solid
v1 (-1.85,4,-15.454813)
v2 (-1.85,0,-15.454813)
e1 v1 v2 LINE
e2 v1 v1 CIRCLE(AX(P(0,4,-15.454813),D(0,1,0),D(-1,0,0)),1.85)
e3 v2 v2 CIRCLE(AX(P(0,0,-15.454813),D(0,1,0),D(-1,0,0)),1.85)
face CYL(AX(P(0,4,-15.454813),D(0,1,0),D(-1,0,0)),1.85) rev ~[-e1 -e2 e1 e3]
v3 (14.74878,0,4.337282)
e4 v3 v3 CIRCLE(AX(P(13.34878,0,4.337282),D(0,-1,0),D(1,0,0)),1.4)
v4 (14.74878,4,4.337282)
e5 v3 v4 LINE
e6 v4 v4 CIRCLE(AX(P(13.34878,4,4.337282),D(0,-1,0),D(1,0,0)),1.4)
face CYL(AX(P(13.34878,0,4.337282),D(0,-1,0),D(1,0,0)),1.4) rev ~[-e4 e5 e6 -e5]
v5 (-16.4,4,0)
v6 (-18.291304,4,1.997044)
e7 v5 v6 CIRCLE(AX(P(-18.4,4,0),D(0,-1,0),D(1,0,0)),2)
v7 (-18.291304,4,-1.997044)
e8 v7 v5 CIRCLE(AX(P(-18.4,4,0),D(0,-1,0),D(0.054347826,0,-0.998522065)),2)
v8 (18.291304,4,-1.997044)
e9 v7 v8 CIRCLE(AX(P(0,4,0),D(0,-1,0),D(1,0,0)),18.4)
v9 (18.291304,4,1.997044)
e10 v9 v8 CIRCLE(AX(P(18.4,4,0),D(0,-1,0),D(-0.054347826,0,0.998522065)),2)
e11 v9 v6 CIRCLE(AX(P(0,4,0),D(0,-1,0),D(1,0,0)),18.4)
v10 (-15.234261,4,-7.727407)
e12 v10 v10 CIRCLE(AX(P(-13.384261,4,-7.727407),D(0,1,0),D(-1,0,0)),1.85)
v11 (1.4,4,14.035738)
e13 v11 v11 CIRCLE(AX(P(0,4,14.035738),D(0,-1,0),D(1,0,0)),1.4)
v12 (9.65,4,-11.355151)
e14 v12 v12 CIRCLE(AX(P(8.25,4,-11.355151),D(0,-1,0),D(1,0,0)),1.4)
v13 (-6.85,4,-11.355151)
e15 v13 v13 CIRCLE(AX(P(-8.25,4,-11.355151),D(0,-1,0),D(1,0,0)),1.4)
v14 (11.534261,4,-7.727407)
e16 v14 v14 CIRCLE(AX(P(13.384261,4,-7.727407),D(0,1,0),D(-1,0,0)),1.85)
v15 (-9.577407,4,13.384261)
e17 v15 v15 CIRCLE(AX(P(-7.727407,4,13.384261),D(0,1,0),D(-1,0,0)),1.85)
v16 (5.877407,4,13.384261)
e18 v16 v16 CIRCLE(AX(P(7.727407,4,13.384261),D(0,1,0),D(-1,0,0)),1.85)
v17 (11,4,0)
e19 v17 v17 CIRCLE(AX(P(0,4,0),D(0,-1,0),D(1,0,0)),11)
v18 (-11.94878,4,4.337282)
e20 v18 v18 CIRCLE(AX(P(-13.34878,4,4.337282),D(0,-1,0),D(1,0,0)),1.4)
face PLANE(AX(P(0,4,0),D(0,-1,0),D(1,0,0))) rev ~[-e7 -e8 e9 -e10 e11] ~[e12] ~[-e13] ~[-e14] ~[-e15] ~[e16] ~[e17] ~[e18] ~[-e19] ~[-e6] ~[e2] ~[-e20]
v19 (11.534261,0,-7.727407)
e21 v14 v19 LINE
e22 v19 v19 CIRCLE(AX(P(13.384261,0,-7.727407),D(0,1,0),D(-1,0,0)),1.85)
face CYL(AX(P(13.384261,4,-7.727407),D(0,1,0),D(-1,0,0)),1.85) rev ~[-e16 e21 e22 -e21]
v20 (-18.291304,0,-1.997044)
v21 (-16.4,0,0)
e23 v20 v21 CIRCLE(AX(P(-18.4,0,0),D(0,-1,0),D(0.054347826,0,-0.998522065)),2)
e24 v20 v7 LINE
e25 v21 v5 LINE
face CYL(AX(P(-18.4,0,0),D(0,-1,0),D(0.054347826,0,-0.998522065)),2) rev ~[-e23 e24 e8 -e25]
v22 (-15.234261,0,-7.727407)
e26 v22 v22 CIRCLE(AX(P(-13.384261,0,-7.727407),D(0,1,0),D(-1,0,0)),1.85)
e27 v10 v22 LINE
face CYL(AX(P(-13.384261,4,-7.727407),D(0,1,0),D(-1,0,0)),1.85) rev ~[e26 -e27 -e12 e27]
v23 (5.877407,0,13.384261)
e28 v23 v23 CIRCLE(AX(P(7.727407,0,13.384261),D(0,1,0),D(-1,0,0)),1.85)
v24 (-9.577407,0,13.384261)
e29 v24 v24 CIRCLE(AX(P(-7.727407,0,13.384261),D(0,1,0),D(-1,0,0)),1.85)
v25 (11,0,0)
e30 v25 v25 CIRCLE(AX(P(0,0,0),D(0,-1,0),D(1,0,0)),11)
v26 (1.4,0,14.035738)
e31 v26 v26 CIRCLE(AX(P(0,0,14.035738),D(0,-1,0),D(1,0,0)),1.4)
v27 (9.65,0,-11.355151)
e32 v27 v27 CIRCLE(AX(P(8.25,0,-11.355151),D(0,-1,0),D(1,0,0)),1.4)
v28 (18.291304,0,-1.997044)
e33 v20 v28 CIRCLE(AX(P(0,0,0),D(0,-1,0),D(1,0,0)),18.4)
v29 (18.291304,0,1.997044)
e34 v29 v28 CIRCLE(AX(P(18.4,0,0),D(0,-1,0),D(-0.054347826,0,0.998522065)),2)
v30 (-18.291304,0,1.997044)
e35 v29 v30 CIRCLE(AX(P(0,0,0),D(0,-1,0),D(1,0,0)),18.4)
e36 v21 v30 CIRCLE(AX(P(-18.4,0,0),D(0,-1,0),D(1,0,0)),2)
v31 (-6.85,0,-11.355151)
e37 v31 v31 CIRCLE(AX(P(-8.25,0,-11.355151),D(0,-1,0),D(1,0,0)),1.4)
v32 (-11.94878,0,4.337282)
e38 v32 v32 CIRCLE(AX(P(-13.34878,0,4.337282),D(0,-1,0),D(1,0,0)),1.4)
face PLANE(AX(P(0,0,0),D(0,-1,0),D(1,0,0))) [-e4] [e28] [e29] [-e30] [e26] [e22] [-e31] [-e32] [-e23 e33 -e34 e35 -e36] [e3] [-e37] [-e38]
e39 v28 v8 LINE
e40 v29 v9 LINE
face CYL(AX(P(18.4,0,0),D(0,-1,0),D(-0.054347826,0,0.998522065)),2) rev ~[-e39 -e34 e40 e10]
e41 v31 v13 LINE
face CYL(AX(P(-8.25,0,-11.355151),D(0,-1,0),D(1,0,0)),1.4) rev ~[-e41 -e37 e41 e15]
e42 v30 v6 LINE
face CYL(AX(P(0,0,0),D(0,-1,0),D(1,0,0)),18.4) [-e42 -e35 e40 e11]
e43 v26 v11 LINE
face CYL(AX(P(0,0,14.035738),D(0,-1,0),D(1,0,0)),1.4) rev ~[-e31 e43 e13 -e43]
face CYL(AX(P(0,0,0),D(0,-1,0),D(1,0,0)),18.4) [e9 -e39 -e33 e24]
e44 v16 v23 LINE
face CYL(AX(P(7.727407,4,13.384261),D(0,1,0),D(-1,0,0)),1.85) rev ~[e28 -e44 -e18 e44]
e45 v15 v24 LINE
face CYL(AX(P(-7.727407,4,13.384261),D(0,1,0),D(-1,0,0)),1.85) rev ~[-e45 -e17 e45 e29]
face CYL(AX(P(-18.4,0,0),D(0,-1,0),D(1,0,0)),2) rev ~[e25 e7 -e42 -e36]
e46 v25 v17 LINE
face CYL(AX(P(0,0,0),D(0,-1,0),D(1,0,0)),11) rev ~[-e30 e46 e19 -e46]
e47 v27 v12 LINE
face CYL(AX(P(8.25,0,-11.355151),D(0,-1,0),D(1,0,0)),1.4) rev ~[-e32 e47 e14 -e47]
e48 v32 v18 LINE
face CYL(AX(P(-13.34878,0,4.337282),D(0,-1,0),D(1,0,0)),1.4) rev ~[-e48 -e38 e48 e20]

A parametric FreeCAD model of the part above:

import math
import FreeCAD as App
import Part
import Sketcher

doc = App.newDocument("Part")
body = doc.addObject("PartDesign::Body", "Body")

# Sketch on XZ plane
sketch1 = doc.addObject("Sketcher::SketchObject", "Sketch")
body.addObject(sketch1)
sketch1.AttachmentSupport = (doc.XZ_Plane, [""])
sketch1.MapMode = "FlatFace"
sketch1.addGeometry(Part.Circle(App.Vector(0, 0, 0), App.Vector(0, 0, 1), 18.4), False)
sketch1.addGeometry(Part.Circle(App.Vector(-8.2, -11.4, 0), App.Vector(0, 0, 1), 1.4), False)
sketch1.addGeometry(Part.Circle(App.Vector(0, 0, 0), App.Vector(0, 0, 1), 11), False)
sketch1.addGeometry(Part.Circle(App.Vector(8.2, -11.4, 0), App.Vector(0, 0, 1), 1.4), False)
sketch1.addGeometry(Part.Circle(App.Vector(-13.3, 4.3, 0), App.Vector(0, 0, 1), 1.4), False)
sketch1.addGeometry(Part.Circle(App.Vector(0, 14, 0), App.Vector(0, 0, 1), 1.4), False)
sketch1.addGeometry(Part.Circle(App.Vector(13.3, 4.3, 0), App.Vector(0, 0, 1), 1.4), False)
sketch1.addConstraint(Sketcher.Constraint("Coincident", 0, 3, -1, 1))
sketch1.addConstraint(Sketcher.Constraint("Coincident", 2, 3, -1, 1))
sketch1.addConstraint(Sketcher.Constraint("Equal", 1, 3))
sketch1.addConstraint(Sketcher.Constraint("Equal", 3, 4))
sketch1.addConstraint(Sketcher.Constraint("Equal", 4, 5))
sketch1.addConstraint(Sketcher.Constraint("Equal", 5, 6))
sketch1.addConstraint(Sketcher.Constraint("Symmetric", 1, 3, 3, 3, -2))
sketch1.addConstraint(Sketcher.Constraint("Symmetric", 4, 3, 6, 3, -2))
sketch1.addConstraint(Sketcher.Constraint("PointOnObject", 5, 3, -2))
sketch1.addConstraint(Sketcher.Constraint("Diameter", 2, 22.0))
sketch1.addConstraint(Sketcher.Constraint("Diameter", 0, 36.8))
sketch1.addConstraint(Sketcher.Constraint("Diameter", 1, 2.8))
sketch1.addConstraint(Sketcher.Constraint("DistanceX", 1, 3, 3, 3, 16.5))
sketch1.addConstraint(Sketcher.Constraint("DistanceY", 1, 3, -1, 1, 11.355151))
sketch1.addConstraint(Sketcher.Constraint("DistanceX", 4, 3, -1, 1, 13.34878))
sketch1.addConstraint(Sketcher.Constraint("DistanceY", -1, 1, 4, 3, 4.337282))
sketch1.addConstraint(Sketcher.Constraint("DistanceY", -1, 1, 5, 3, 14.035738))
pad1 = doc.addObject("PartDesign::Pad", "Pad")
body.addObject(pad1)
pad1.Profile = sketch1
pad1.Length = 4
pad1.Reversed = True

# Sketch on XZ plane
sketch2 = doc.addObject("Sketcher::SketchObject", "Sketch001")
body.addObject(sketch2)
sketch2.AttachmentSupport = (doc.XZ_Plane, [""])
sketch2.MapMode = "FlatFace"
sketch2.AttachmentOffset = App.Placement(App.Vector(0, 0, -4), App.Rotation())
sketch2.addGeometry(Part.Circle(App.Vector(0, -15.5, 0), App.Vector(0, 0, 1), 1.9), False)
sketch2.addGeometry(Part.Circle(App.Vector(-13.4, -7.7, 0), App.Vector(0, 0, 1), 1.9), False)
sketch2.addGeometry(Part.Circle(App.Vector(13.4, -7.7, 0), App.Vector(0, 0, 1), 1.9), False)
sketch2.addGeometry(Part.Circle(App.Vector(7.7, 13.4, 0), App.Vector(0, 0, 1), 1.9), False)
sketch2.addGeometry(Part.Circle(App.Vector(-7.7, 13.4, 0), App.Vector(0, 0, 1), 1.9), False)
sketch2.addConstraint(Sketcher.Constraint("Equal", 0, 1))
sketch2.addConstraint(Sketcher.Constraint("Equal", 1, 2))
sketch2.addConstraint(Sketcher.Constraint("Equal", 2, 3))
sketch2.addConstraint(Sketcher.Constraint("Equal", 3, 4))
sketch2.addConstraint(Sketcher.Constraint("Symmetric", 1, 3, 2, 3, -2))
sketch2.addConstraint(Sketcher.Constraint("Symmetric", 3, 3, 4, 3, -2))
sketch2.addConstraint(Sketcher.Constraint("PointOnObject", 0, 3, -2))
sketch2.addConstraint(Sketcher.Constraint("Diameter", 0, 3.7))
sketch2.addConstraint(Sketcher.Constraint("DistanceX", 1, 3, -1, 1, 13.384261))
sketch2.addConstraint(Sketcher.Constraint("DistanceY", -1, 1, 3, 3, 13.384261))
sketch2.addConstraint(Sketcher.Constraint("DistanceY", 0, 3, -1, 1, 15.454813))
sketch2.addConstraint(Sketcher.Constraint("DistanceY", 1, 3, -1, 1, 7.727407))
sketch2.addConstraint(Sketcher.Constraint("DistanceX", -1, 1, 3, 3, 7.727407))
pocket1 = doc.addObject("PartDesign::Pocket", "Pocket")
body.addObject(pocket1)
pocket1.Profile = sketch2
pocket1.Length = 25
pocket1.Reversed = True

# Sketch on XZ plane
sketch3 = doc.addObject("Sketcher::SketchObject", "Sketch002")
body.addObject(sketch3)
sketch3.AttachmentSupport = (doc.XZ_Plane, [""])
sketch3.MapMode = "FlatFace"
sketch3.addGeometry(Part.ArcOfCircle(Part.Circle(App.Vector(-18.4, 0, 0), App.Vector(0, 0, 1), 2), math.radians(-87), math.radians(0)), False)
sketch3.addGeometry(Part.ArcOfCircle(Part.Circle(App.Vector(-18.4, 0, 0), App.Vector(0, 0, 1), 2), math.radians(0), math.radians(87)), False)
sketch3.addGeometry(Part.ArcOfCircle(Part.Circle(App.Vector(0, 0, 0), App.Vector(0, 0, 1), 18.4), math.radians(173.77), math.radians(186.23)), False)
sketch3.addGeometry(Part.ArcOfCircle(Part.Circle(App.Vector(0, 0, 0), App.Vector(0, 0, 1), 18.4), math.radians(0), math.radians(6.23)), False)
sketch3.addGeometry(Part.ArcOfCircle(Part.Circle(App.Vector(18.4, 0, 0), App.Vector(0, 0, 1), 2), math.radians(93), math.radians(267)), False)
sketch3.addGeometry(Part.ArcOfCircle(Part.Circle(App.Vector(0, 0, 0), App.Vector(0, 0, 1), 18.4), math.radians(-6.23), math.radians(0)), False)
sketch3.addConstraint(Sketcher.Constraint("Tangent", 0, 2, 1, 1))
sketch3.addConstraint(Sketcher.Constraint("Coincident", 1, 2, 2, 1))
sketch3.addConstraint(Sketcher.Constraint("Coincident", 2, 2, 0, 1))
sketch3.addConstraint(Sketcher.Constraint("Coincident", 3, 2, 4, 1))
sketch3.addConstraint(Sketcher.Constraint("Coincident", 4, 2, 5, 1))
sketch3.addConstraint(Sketcher.Constraint("Tangent", 5, 2, 3, 1))
sketch3.addConstraint(Sketcher.Constraint("Coincident", 2, 3, -1, 1))
sketch3.addConstraint(Sketcher.Constraint("Coincident", 3, 3, -1, 1))
sketch3.addConstraint(Sketcher.Constraint("Coincident", 5, 2, 4, 3))
sketch3.addConstraint(Sketcher.Constraint("Equal", 0, 1))
sketch3.addConstraint(Sketcher.Constraint("Equal", 2, 3))
sketch3.addConstraint(Sketcher.Constraint("Equal", 1, 4))
sketch3.addConstraint(Sketcher.Constraint("Equal", 3, 5))
sketch3.addConstraint(Sketcher.Constraint("Symmetric", 0, 3, 4, 3, -1, 1))
sketch3.addConstraint(Sketcher.Constraint("PointOnObject", 0, 3, -1))
sketch3.addConstraint(Sketcher.Constraint("PointOnObject", 0, 2, -1))
sketch3.addConstraint(Sketcher.Constraint("Radius", 0, 2.0))
sketch3.addConstraint(Sketcher.Constraint("Radius", 2, 18.4))
pocket2 = doc.addObject("PartDesign::Pocket", "Pocket001")
body.addObject(pocket2)
pocket2.Profile = sketch3
pocket2.Length = 25

doc.recompute()
